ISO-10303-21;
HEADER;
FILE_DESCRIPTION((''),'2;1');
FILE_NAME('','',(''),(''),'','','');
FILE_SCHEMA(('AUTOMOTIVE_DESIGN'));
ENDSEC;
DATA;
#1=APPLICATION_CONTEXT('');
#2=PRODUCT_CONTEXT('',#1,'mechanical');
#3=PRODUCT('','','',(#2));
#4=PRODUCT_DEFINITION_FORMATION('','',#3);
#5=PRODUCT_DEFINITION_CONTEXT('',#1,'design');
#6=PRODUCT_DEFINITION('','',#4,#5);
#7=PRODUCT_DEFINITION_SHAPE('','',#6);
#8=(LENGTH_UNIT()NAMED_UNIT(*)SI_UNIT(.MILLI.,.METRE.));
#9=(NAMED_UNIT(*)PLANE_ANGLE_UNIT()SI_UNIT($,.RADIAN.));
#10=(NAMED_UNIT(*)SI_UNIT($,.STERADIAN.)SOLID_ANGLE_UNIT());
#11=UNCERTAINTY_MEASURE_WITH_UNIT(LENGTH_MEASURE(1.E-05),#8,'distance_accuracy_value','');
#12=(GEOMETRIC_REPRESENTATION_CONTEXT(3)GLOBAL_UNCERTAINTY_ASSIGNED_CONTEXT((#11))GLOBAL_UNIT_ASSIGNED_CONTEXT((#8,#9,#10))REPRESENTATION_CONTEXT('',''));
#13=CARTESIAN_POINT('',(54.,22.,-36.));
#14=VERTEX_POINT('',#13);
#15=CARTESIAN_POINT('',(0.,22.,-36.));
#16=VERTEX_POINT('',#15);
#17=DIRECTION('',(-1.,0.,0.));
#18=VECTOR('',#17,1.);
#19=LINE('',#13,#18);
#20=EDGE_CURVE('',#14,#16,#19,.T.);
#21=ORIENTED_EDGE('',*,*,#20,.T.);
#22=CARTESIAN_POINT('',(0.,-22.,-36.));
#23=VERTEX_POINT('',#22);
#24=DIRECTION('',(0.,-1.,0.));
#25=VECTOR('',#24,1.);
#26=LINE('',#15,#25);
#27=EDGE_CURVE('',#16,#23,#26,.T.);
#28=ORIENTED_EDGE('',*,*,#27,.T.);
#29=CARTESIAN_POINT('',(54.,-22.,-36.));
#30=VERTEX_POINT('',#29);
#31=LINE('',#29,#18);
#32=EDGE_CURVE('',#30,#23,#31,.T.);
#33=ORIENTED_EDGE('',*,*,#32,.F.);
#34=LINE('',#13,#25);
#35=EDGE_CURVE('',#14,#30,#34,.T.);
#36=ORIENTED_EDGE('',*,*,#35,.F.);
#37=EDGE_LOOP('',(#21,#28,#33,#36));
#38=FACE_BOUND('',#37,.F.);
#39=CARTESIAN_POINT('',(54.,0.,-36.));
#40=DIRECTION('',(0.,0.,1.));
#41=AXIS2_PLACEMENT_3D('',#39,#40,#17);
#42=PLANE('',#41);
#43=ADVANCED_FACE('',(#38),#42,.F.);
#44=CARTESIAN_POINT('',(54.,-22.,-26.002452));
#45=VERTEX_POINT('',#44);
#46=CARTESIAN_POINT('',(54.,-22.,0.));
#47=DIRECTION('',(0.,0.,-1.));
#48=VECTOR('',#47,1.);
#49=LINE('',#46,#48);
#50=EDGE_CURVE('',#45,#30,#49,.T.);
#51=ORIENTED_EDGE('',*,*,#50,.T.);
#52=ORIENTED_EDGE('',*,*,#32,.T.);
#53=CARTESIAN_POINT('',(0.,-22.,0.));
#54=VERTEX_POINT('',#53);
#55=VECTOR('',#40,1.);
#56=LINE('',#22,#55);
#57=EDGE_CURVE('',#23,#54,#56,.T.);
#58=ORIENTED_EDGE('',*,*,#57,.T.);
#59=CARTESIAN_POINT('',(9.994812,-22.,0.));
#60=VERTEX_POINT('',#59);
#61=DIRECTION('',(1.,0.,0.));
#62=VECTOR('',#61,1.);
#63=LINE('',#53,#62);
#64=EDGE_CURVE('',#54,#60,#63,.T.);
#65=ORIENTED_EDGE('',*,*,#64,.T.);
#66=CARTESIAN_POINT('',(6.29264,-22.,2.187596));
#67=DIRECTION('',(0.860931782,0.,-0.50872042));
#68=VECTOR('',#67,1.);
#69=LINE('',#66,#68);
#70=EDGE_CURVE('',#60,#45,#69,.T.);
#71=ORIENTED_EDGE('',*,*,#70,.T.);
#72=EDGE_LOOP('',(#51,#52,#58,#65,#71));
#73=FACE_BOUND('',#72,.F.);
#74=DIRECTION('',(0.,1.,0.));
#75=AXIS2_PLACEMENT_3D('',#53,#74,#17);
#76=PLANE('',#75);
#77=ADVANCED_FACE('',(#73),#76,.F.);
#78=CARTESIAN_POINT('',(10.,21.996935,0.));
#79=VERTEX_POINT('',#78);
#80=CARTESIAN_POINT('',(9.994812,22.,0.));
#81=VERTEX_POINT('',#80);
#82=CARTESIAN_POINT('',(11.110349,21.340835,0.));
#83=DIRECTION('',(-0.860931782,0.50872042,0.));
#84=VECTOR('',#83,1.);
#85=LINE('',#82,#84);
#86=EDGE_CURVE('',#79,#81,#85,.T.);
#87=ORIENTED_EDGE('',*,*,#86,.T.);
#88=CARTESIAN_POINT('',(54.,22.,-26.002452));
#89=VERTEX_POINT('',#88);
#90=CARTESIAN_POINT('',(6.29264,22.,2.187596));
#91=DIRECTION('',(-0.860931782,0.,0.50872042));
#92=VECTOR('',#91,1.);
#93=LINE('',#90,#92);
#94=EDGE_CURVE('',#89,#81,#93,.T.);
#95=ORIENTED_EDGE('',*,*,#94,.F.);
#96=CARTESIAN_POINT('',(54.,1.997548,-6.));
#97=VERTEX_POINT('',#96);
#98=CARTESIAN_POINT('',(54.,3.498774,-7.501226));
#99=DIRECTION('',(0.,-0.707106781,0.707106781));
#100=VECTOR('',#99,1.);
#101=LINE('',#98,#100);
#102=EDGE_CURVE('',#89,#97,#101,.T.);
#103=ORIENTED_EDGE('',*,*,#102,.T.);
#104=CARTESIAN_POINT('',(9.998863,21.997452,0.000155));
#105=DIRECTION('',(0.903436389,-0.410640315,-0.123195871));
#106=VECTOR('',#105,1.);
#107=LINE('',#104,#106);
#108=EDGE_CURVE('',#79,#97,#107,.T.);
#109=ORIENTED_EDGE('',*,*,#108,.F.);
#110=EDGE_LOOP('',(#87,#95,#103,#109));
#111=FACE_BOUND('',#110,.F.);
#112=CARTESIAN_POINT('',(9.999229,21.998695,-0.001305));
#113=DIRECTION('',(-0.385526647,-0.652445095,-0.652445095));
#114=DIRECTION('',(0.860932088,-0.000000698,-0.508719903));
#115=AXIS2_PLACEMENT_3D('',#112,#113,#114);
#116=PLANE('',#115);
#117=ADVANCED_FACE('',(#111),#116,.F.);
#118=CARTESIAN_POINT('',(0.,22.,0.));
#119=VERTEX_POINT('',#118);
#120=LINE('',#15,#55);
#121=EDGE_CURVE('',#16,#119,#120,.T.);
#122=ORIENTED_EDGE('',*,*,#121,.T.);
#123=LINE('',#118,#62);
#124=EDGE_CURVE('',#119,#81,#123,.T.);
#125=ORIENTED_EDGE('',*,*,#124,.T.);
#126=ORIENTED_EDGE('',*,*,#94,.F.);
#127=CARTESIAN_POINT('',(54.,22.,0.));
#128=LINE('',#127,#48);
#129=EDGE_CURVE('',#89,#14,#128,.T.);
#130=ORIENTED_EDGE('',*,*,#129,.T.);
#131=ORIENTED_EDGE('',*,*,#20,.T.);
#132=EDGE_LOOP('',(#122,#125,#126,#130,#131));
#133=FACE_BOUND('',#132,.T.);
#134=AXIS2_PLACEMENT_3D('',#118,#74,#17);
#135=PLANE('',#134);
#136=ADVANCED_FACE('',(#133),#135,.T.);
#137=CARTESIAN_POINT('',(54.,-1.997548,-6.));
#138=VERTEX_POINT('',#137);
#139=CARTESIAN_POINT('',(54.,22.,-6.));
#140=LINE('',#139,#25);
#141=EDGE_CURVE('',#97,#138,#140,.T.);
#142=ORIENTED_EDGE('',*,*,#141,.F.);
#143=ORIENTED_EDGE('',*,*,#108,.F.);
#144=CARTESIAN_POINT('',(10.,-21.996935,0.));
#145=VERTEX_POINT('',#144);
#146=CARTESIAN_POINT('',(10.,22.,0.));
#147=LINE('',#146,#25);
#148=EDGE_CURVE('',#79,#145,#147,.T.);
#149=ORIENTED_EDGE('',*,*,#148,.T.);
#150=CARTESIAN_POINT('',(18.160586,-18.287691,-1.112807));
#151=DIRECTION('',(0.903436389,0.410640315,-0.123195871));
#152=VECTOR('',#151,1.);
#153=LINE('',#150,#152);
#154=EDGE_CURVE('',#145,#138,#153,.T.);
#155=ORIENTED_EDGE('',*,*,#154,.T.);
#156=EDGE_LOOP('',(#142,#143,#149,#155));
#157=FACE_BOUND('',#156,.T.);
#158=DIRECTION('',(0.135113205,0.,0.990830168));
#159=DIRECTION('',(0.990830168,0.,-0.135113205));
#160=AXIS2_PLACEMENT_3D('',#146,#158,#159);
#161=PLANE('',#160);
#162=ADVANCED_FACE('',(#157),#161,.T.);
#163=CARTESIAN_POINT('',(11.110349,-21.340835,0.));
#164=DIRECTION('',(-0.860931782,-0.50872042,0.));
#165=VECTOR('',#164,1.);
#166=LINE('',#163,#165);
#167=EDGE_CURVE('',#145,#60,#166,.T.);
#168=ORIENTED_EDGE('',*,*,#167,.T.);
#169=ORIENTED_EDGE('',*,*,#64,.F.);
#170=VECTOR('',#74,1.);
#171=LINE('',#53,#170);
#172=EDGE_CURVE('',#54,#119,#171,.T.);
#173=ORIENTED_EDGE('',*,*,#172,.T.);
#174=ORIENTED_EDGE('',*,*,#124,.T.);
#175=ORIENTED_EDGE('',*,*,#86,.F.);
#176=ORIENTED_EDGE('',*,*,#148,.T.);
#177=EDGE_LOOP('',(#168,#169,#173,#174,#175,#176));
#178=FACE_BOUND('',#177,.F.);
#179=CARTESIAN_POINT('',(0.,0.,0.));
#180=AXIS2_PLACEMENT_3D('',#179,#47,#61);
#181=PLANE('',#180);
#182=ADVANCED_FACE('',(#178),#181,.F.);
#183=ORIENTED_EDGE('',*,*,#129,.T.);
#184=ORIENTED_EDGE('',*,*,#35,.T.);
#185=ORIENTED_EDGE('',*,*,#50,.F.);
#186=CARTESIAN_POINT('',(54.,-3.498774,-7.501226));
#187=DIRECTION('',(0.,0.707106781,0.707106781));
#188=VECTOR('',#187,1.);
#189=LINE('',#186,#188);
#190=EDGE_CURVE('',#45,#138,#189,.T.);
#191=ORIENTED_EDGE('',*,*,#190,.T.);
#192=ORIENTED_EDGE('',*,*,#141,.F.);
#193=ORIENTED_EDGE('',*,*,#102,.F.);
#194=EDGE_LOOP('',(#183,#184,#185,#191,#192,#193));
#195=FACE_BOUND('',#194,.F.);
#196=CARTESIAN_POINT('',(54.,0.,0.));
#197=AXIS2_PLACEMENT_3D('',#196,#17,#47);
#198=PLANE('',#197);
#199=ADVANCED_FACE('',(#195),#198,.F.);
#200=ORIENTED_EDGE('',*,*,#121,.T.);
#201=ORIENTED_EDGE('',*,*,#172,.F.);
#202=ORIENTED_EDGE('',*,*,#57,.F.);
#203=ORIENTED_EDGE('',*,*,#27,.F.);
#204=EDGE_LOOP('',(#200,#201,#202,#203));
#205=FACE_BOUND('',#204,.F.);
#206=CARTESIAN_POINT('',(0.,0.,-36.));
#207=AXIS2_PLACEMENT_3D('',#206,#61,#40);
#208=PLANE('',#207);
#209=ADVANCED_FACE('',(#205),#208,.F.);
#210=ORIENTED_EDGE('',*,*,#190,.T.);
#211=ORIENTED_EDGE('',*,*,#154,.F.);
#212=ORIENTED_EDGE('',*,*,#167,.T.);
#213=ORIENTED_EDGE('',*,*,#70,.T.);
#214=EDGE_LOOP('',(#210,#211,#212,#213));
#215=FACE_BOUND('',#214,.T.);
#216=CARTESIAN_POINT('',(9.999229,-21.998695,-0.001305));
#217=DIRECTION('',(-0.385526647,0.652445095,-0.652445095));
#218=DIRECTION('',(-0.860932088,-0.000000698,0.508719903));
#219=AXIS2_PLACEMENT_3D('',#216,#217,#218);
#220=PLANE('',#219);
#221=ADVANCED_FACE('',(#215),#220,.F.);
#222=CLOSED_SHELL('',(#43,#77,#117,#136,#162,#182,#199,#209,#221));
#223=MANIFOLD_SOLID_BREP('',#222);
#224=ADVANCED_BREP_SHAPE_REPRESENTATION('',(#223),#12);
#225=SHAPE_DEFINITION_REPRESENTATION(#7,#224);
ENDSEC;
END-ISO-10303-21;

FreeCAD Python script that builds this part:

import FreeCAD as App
import Part
import Sketcher
from FreeCAD import Vector

doc = App.newDocument("Part")
body = doc.addObject("PartDesign::Body", "Body")

sketch1 = body.newObject("Sketcher::SketchObject", "Sketch")
sketch1.AttachmentSupport = (doc.getObject("XZ_Plane"), [""])
sketch1.MapMode = "FlatFace"
sketch1.addGeometry(Part.LineSegment(Vector(0, -36, 0), Vector(0, 0, 0)), False)
sketch1.addGeometry(Part.LineSegment(Vector(0, 0, 0), Vector(54, 0, 0)), False)
sketch1.addGeometry(Part.LineSegment(Vector(54, 0, 0), Vector(54, -36, 0)), False)
sketch1.addGeometry(Part.LineSegment(Vector(54, -36, 0), Vector(0, -36, 0)), False)
sketch1.addConstraint(Sketcher.Constraint("Coincident", 0, 2, 1, 1))
sketch1.addConstraint(Sketcher.Constraint("Coincident", 1, 2, 2, 1))
sketch1.addConstraint(Sketcher.Constraint("Coincident", 2, 2, 3, 1))
sketch1.addConstraint(Sketcher.Constraint("Coincident", 3, 2, 0, 1))
sketch1.addConstraint(Sketcher.Constraint("Vertical", 0))
sketch1.addConstraint(Sketcher.Constraint("Horizontal", 1))
sketch1.addConstraint(Sketcher.Constraint("Vertical", 2))
sketch1.addConstraint(Sketcher.Constraint("Horizontal", 3))
sketch1.addConstraint(Sketcher.Constraint("Coincident", 0, 2, -1, 1))
sketch1.addConstraint(Sketcher.Constraint("DistanceX", 1, 1, 1, 2, 54.0))
sketch1.addConstraint(Sketcher.Constraint("DistanceY", 0, 1, 0, 2, 36.0))
pad1 = body.newObject("PartDesign::Pad", "Pad")
pad1.Profile = sketch1
pad1.Length = 44
pad1.Midplane = True

sketch2 = body.newObject("Sketcher::SketchObject", "Sketch001")
sketch2.AttachmentSupport = (doc.getObject("XZ_Plane"), [""])
sketch2.MapMode = "FlatFace"
sketch2.AttachmentOffset = App.Placement(Vector(0, 0, -22), App.Rotation())
sketch2.addGeometry(Part.LineSegment(Vector(54, -6, 0), Vector(10, 0, 0)), False)
sketch2.addGeometry(Part.LineSegment(Vector(10, 0, 0), Vector(54, 0, 0)), False)
sketch2.addGeometry(Part.LineSegment(Vector(54, 0, 0), Vector(54, -6, 0)), False)
sketch2.addConstraint(Sketcher.Constraint("Coincident", 0, 2, 1, 1))
sketch2.addConstraint(Sketcher.Constraint("Coincident", 1, 2, 2, 1))
sketch2.addConstraint(Sketcher.Constraint("Coincident", 2, 2, 0, 1))
sketch2.addConstraint(Sketcher.Constraint("Horizontal", 1))
sketch2.addConstraint(Sketcher.Constraint("Vertical", 2))
sketch2.addConstraint(Sketcher.Constraint("PointOnObject", 0, 2, -1))
sketch2.addConstraint(Sketcher.Constraint("DistanceX", -1, 1, 0, 2, 10.0))
sketch2.addConstraint(Sketcher.Constraint("DistanceX", 1, 1, 1, 2, 44.0))
sketch2.addConstraint(Sketcher.Constraint("DistanceY", 2, 2, 2, 1, 6.0))
pocket1 = body.newObject("PartDesign::Pocket", "Pocket")
pocket1.Profile = sketch2
pocket1.Length = 60
pocket1.Reversed = True

sketch3 = body.newObject("Sketcher::SketchObject", "Sketch002")
sketch3.Placement = App.Placement(Vector(10, 22, 0), App.Rotation(Vector(0.860932088, -0.000000698, -0.508719903), Vector(0.33191135, -0.757835996, 0.561711187), Vector(-0.385526647, -0.652445095, -0.652445095), "ZXY"))
sketch3.addGeometry(Part.LineSegment(Vector(-15.1543, 28.8166, 0), Vector(-15.1543, -12.3218, 0)), False)
sketch3.addGeometry(Part.LineSegment(Vector(-15.1543, -12.3218, 0), Vector(93.717, -12.3218, 0)), False)
sketch3.addGeometry(Part.LineSegment(Vector(93.717, -12.3218, 0), Vector(93.717, 28.8166, 0)), False)
sketch3.addGeometry(Part.LineSegment(Vector(93.717, 28.8166, 0), Vector(-15.1543, 28.8166, 0)), False)
sketch3.addConstraint(Sketcher.Constraint("Coincident", 0, 2, 1, 1))
sketch3.addConstraint(Sketcher.Constraint("Coincident", 1, 2, 2, 1))
sketch3.addConstraint(Sketcher.Constraint("Coincident", 2, 2, 3, 1))
sketch3.addConstraint(Sketcher.Constraint("Coincident", 3, 2, 0, 1))
sketch3.addConstraint(Sketcher.Constraint("Vertical", 0))
sketch3.addConstraint(Sketcher.Constraint("Horizontal", 1))
sketch3.addConstraint(Sketcher.Constraint("Vertical", 2))
sketch3.addConstraint(Sketcher.Constraint("Horizontal", 3))
sketch3.addConstraint(Sketcher.Constraint("DistanceX", 1, 1, 1, 2, 108.8713))
sketch3.addConstraint(Sketcher.Constraint("DistanceY", 0, 2, 0, 1, 41.1384))
sketch3.addConstraint(Sketcher.Constraint("DistanceX", -1, 1, 1, 2, 93.717))
sketch3.addConstraint(Sketcher.Constraint("DistanceY", 0, 2, -1, 1, 12.3218))
pocket2 = body.newObject("PartDesign::Pocket", "Pocket001")
pocket2.Profile = sketch3
pocket2.Length = 40
doc.recompute()

mirrored = body.newObject("PartDesign::Mirrored", "Mirrored")
mirrored.Originals = [pocket2]
mirrored.MirrorPlane = (doc.getObject("XZ_Plane"), [""])
body.Tip = mirrored

doc.recompute()
